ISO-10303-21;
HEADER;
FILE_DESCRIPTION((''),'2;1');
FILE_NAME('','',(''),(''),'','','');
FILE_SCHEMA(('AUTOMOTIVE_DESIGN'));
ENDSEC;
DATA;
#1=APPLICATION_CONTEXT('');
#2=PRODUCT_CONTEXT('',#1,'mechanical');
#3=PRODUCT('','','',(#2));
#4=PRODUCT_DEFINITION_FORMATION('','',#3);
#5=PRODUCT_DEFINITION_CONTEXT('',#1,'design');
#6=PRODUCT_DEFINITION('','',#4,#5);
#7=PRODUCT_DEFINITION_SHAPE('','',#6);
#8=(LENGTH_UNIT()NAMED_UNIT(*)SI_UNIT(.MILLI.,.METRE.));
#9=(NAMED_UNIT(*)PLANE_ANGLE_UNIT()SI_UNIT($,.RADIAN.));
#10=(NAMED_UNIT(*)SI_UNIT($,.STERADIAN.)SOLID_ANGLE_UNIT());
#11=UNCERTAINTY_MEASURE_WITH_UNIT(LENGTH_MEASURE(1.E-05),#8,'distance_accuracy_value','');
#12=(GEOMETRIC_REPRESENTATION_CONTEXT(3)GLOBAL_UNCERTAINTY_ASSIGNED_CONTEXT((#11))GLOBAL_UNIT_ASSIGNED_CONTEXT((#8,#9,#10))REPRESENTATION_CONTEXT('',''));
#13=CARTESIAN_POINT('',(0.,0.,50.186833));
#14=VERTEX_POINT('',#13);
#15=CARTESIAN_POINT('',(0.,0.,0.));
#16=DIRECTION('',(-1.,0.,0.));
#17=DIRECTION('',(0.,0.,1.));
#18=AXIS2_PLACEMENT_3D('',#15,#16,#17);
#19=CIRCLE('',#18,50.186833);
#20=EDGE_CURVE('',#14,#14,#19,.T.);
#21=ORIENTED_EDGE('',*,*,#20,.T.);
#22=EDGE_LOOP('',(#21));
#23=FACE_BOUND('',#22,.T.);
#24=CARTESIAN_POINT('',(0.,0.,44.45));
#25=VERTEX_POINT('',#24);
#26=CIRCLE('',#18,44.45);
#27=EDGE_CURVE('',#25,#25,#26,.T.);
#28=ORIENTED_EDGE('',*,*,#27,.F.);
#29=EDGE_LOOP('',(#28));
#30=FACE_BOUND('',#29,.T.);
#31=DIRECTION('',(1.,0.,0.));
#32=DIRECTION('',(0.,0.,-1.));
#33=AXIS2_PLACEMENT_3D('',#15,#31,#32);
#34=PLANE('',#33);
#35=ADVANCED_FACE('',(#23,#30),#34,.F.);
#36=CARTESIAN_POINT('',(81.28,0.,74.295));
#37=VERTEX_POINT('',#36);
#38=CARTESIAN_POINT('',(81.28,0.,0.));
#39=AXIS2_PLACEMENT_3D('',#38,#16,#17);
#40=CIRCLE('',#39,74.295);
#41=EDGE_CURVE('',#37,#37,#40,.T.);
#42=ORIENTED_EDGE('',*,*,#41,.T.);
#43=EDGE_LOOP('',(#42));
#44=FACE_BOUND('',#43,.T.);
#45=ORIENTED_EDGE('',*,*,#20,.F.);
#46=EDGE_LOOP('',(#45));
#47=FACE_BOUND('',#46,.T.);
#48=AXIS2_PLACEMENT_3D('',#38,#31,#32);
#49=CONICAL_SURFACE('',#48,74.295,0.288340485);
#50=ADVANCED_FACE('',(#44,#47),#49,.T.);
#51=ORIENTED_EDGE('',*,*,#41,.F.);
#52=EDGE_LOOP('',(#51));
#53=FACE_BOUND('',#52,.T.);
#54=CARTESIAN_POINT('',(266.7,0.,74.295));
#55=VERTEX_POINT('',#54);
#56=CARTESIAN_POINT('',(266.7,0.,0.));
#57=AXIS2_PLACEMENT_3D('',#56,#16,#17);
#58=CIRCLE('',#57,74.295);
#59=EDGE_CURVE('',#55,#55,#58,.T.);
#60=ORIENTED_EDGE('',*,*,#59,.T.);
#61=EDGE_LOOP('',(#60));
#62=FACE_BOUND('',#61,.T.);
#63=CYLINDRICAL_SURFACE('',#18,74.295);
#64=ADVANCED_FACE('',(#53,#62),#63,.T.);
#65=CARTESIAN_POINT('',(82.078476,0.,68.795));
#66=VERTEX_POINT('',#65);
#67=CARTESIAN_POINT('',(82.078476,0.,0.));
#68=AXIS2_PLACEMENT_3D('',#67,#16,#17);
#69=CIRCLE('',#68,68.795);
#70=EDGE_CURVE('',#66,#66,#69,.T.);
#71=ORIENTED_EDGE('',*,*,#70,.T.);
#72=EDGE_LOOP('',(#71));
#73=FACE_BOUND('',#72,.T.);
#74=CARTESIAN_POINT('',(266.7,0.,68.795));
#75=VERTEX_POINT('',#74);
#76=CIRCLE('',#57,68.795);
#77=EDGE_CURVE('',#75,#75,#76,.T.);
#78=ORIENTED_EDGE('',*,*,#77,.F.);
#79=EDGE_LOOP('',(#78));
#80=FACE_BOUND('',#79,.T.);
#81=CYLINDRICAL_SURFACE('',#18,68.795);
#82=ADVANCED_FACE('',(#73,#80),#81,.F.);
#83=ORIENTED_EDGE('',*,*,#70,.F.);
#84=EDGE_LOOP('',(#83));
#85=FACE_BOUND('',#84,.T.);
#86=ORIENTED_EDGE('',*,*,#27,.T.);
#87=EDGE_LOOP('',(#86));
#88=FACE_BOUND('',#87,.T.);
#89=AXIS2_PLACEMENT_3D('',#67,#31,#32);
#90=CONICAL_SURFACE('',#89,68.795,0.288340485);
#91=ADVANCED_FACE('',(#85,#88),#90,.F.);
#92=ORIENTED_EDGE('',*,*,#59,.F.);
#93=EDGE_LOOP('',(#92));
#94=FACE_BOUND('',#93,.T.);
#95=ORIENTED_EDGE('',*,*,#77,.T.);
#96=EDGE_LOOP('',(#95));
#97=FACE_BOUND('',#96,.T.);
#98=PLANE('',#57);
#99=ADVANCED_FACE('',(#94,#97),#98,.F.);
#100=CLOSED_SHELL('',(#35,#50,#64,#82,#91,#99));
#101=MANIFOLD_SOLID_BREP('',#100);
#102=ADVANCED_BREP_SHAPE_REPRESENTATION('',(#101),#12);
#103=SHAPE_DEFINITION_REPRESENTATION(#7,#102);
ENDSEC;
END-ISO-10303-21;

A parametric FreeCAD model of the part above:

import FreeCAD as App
import Part
import Sketcher


def add_polygon(sketch, points):
    """Adds a closed chain of lines whose ends are joined by coincident constraints."""
    first, n = sketch.GeometryCount, len(points)
    for a, b in zip(points, points[1:] + points[:1]):
        sketch.addGeometry(Part.LineSegment(App.Vector(*a, 0), App.Vector(*b, 0)), False)
    for i in range(n):
        sketch.addConstraint(Sketcher.Constraint("Coincident", first + i, 2, first + (i + 1) % n, 1))

doc = App.newDocument("Part")
body = doc.addObject("PartDesign::Body", "Body")

# Sketch on XY plane
sketch1 = body.newObject("Sketcher::SketchObject", "Sketch")
sketch1.AttachmentSupport = (doc.getObject("XY_Plane"), [""])
sketch1.MapMode = "FlatFace"
add_polygon(sketch1, [(266.7, 68.795), (266.7, 74.295), (81.28, 74.295), (0, 50.186833), (0, 44.45), (82.078476, 68.795)])  # lines 0-5
sketch1.addConstraint(Sketcher.Constraint("Vertical", 0))
sketch1.addConstraint(Sketcher.Constraint("Horizontal", 1))
sketch1.addConstraint(Sketcher.Constraint("Vertical", 3))
sketch1.addConstraint(Sketcher.Constraint("Horizontal", 5))
sketch1.addConstraint(Sketcher.Constraint("PointOnObject", 2, 2, -2))
sketch1.addConstraint(Sketcher.Constraint("Parallel", 2, 4))
sketch1.addConstraint(Sketcher.Constraint("DistanceY", 0, 1, 0, 2, 5.5))
sketch1.addConstraint(Sketcher.Constraint("DistanceX", 1, 2, 1, 1, 185.42))
sketch1.addConstraint(Sketcher.Constraint("DistanceX", -1, 1, 0, 2, 266.7))
sketch1.addConstraint(Sketcher.Constraint("DistanceY", -1, 1, 3, 2, 44.45))
sketch1.addConstraint(Sketcher.Constraint("DistanceY", -1, 1, 0, 2, 74.295))
sketch1.addConstraint(Sketcher.Constraint("Distance", 4, 85.612822))
revolution = body.newObject("PartDesign::Revolution", "Revolution")
revolution.Profile = sketch1
revolution.ReferenceAxis = (sketch1, ["H_Axis"])
revolution.Angle = 360

doc.recompute()
